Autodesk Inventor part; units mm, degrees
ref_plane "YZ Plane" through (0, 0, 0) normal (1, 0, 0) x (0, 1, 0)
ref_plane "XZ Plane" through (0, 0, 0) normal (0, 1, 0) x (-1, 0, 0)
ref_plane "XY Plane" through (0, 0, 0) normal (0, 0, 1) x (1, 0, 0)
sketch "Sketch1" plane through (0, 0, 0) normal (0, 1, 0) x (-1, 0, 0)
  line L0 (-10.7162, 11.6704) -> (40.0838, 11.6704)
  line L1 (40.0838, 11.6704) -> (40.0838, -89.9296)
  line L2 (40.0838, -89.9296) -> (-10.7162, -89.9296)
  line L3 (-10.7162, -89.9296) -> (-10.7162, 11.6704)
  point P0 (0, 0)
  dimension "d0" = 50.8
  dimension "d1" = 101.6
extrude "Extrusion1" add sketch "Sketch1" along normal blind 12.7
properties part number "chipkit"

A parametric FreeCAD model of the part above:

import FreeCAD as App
import Part
import Sketcher
from FreeCAD import Vector
Q = App.Units.Quantity


def add_polygon(sketch, points):
    """Adds a closed chain of lines whose ends are joined by coincident constraints."""
    first, n = sketch.GeometryCount, len(points)
    for a, b in zip(points, points[1:] + points[:1]):
        sketch.addGeometry(Part.LineSegment(App.Vector(*a, 0), App.Vector(*b, 0)), False)
    for i in range(n):
        sketch.addConstraint(Sketcher.Constraint("Coincident", first + i, 2, first + (i + 1) % n, 1))

doc = App.newDocument("Part")
body = doc.addObject("PartDesign::Body", "Body")

# Sketch on XZ plane
sketch1 = doc.addObject("Sketcher::SketchObject", "Sketch")
body.addObject(sketch1)
sketch1.AttachmentSupport = (doc.XZ_Plane, [""])
sketch1.MapMode = "FlatFace"
add_polygon(sketch1, [(-40.0838, 11.6704), (10.7162, 11.6704), (10.7162, -89.9296), (-40.0838, -89.9296)])  # lines 0-3
sketch1.addConstraint([
    Sketcher.Constraint("Horizontal", 0),
    Sketcher.Constraint("Vertical", 1),
    Sketcher.Constraint("Horizontal", 2),
    Sketcher.Constraint("Vertical", 3),
    Sketcher.Constraint("DistanceX", 0, 1, 0, 2, Q("2 in")),
    Sketcher.Constraint("DistanceY", 1, 2, 1, 1, Q("4 in")),
    Sketcher.Constraint("DistanceX", -1, 1, 0, 2, Q("0.4219 in")),
    Sketcher.Constraint("DistanceY", -1, 1, 0, 2, 11.6704),
])
pad1 = doc.addObject("PartDesign::Pad", "Pad")
body.addObject(pad1)
pad1.Profile = sketch1
pad1.Length = Q("0.5 in")
pad1.Reversed = True

doc.recompute()
